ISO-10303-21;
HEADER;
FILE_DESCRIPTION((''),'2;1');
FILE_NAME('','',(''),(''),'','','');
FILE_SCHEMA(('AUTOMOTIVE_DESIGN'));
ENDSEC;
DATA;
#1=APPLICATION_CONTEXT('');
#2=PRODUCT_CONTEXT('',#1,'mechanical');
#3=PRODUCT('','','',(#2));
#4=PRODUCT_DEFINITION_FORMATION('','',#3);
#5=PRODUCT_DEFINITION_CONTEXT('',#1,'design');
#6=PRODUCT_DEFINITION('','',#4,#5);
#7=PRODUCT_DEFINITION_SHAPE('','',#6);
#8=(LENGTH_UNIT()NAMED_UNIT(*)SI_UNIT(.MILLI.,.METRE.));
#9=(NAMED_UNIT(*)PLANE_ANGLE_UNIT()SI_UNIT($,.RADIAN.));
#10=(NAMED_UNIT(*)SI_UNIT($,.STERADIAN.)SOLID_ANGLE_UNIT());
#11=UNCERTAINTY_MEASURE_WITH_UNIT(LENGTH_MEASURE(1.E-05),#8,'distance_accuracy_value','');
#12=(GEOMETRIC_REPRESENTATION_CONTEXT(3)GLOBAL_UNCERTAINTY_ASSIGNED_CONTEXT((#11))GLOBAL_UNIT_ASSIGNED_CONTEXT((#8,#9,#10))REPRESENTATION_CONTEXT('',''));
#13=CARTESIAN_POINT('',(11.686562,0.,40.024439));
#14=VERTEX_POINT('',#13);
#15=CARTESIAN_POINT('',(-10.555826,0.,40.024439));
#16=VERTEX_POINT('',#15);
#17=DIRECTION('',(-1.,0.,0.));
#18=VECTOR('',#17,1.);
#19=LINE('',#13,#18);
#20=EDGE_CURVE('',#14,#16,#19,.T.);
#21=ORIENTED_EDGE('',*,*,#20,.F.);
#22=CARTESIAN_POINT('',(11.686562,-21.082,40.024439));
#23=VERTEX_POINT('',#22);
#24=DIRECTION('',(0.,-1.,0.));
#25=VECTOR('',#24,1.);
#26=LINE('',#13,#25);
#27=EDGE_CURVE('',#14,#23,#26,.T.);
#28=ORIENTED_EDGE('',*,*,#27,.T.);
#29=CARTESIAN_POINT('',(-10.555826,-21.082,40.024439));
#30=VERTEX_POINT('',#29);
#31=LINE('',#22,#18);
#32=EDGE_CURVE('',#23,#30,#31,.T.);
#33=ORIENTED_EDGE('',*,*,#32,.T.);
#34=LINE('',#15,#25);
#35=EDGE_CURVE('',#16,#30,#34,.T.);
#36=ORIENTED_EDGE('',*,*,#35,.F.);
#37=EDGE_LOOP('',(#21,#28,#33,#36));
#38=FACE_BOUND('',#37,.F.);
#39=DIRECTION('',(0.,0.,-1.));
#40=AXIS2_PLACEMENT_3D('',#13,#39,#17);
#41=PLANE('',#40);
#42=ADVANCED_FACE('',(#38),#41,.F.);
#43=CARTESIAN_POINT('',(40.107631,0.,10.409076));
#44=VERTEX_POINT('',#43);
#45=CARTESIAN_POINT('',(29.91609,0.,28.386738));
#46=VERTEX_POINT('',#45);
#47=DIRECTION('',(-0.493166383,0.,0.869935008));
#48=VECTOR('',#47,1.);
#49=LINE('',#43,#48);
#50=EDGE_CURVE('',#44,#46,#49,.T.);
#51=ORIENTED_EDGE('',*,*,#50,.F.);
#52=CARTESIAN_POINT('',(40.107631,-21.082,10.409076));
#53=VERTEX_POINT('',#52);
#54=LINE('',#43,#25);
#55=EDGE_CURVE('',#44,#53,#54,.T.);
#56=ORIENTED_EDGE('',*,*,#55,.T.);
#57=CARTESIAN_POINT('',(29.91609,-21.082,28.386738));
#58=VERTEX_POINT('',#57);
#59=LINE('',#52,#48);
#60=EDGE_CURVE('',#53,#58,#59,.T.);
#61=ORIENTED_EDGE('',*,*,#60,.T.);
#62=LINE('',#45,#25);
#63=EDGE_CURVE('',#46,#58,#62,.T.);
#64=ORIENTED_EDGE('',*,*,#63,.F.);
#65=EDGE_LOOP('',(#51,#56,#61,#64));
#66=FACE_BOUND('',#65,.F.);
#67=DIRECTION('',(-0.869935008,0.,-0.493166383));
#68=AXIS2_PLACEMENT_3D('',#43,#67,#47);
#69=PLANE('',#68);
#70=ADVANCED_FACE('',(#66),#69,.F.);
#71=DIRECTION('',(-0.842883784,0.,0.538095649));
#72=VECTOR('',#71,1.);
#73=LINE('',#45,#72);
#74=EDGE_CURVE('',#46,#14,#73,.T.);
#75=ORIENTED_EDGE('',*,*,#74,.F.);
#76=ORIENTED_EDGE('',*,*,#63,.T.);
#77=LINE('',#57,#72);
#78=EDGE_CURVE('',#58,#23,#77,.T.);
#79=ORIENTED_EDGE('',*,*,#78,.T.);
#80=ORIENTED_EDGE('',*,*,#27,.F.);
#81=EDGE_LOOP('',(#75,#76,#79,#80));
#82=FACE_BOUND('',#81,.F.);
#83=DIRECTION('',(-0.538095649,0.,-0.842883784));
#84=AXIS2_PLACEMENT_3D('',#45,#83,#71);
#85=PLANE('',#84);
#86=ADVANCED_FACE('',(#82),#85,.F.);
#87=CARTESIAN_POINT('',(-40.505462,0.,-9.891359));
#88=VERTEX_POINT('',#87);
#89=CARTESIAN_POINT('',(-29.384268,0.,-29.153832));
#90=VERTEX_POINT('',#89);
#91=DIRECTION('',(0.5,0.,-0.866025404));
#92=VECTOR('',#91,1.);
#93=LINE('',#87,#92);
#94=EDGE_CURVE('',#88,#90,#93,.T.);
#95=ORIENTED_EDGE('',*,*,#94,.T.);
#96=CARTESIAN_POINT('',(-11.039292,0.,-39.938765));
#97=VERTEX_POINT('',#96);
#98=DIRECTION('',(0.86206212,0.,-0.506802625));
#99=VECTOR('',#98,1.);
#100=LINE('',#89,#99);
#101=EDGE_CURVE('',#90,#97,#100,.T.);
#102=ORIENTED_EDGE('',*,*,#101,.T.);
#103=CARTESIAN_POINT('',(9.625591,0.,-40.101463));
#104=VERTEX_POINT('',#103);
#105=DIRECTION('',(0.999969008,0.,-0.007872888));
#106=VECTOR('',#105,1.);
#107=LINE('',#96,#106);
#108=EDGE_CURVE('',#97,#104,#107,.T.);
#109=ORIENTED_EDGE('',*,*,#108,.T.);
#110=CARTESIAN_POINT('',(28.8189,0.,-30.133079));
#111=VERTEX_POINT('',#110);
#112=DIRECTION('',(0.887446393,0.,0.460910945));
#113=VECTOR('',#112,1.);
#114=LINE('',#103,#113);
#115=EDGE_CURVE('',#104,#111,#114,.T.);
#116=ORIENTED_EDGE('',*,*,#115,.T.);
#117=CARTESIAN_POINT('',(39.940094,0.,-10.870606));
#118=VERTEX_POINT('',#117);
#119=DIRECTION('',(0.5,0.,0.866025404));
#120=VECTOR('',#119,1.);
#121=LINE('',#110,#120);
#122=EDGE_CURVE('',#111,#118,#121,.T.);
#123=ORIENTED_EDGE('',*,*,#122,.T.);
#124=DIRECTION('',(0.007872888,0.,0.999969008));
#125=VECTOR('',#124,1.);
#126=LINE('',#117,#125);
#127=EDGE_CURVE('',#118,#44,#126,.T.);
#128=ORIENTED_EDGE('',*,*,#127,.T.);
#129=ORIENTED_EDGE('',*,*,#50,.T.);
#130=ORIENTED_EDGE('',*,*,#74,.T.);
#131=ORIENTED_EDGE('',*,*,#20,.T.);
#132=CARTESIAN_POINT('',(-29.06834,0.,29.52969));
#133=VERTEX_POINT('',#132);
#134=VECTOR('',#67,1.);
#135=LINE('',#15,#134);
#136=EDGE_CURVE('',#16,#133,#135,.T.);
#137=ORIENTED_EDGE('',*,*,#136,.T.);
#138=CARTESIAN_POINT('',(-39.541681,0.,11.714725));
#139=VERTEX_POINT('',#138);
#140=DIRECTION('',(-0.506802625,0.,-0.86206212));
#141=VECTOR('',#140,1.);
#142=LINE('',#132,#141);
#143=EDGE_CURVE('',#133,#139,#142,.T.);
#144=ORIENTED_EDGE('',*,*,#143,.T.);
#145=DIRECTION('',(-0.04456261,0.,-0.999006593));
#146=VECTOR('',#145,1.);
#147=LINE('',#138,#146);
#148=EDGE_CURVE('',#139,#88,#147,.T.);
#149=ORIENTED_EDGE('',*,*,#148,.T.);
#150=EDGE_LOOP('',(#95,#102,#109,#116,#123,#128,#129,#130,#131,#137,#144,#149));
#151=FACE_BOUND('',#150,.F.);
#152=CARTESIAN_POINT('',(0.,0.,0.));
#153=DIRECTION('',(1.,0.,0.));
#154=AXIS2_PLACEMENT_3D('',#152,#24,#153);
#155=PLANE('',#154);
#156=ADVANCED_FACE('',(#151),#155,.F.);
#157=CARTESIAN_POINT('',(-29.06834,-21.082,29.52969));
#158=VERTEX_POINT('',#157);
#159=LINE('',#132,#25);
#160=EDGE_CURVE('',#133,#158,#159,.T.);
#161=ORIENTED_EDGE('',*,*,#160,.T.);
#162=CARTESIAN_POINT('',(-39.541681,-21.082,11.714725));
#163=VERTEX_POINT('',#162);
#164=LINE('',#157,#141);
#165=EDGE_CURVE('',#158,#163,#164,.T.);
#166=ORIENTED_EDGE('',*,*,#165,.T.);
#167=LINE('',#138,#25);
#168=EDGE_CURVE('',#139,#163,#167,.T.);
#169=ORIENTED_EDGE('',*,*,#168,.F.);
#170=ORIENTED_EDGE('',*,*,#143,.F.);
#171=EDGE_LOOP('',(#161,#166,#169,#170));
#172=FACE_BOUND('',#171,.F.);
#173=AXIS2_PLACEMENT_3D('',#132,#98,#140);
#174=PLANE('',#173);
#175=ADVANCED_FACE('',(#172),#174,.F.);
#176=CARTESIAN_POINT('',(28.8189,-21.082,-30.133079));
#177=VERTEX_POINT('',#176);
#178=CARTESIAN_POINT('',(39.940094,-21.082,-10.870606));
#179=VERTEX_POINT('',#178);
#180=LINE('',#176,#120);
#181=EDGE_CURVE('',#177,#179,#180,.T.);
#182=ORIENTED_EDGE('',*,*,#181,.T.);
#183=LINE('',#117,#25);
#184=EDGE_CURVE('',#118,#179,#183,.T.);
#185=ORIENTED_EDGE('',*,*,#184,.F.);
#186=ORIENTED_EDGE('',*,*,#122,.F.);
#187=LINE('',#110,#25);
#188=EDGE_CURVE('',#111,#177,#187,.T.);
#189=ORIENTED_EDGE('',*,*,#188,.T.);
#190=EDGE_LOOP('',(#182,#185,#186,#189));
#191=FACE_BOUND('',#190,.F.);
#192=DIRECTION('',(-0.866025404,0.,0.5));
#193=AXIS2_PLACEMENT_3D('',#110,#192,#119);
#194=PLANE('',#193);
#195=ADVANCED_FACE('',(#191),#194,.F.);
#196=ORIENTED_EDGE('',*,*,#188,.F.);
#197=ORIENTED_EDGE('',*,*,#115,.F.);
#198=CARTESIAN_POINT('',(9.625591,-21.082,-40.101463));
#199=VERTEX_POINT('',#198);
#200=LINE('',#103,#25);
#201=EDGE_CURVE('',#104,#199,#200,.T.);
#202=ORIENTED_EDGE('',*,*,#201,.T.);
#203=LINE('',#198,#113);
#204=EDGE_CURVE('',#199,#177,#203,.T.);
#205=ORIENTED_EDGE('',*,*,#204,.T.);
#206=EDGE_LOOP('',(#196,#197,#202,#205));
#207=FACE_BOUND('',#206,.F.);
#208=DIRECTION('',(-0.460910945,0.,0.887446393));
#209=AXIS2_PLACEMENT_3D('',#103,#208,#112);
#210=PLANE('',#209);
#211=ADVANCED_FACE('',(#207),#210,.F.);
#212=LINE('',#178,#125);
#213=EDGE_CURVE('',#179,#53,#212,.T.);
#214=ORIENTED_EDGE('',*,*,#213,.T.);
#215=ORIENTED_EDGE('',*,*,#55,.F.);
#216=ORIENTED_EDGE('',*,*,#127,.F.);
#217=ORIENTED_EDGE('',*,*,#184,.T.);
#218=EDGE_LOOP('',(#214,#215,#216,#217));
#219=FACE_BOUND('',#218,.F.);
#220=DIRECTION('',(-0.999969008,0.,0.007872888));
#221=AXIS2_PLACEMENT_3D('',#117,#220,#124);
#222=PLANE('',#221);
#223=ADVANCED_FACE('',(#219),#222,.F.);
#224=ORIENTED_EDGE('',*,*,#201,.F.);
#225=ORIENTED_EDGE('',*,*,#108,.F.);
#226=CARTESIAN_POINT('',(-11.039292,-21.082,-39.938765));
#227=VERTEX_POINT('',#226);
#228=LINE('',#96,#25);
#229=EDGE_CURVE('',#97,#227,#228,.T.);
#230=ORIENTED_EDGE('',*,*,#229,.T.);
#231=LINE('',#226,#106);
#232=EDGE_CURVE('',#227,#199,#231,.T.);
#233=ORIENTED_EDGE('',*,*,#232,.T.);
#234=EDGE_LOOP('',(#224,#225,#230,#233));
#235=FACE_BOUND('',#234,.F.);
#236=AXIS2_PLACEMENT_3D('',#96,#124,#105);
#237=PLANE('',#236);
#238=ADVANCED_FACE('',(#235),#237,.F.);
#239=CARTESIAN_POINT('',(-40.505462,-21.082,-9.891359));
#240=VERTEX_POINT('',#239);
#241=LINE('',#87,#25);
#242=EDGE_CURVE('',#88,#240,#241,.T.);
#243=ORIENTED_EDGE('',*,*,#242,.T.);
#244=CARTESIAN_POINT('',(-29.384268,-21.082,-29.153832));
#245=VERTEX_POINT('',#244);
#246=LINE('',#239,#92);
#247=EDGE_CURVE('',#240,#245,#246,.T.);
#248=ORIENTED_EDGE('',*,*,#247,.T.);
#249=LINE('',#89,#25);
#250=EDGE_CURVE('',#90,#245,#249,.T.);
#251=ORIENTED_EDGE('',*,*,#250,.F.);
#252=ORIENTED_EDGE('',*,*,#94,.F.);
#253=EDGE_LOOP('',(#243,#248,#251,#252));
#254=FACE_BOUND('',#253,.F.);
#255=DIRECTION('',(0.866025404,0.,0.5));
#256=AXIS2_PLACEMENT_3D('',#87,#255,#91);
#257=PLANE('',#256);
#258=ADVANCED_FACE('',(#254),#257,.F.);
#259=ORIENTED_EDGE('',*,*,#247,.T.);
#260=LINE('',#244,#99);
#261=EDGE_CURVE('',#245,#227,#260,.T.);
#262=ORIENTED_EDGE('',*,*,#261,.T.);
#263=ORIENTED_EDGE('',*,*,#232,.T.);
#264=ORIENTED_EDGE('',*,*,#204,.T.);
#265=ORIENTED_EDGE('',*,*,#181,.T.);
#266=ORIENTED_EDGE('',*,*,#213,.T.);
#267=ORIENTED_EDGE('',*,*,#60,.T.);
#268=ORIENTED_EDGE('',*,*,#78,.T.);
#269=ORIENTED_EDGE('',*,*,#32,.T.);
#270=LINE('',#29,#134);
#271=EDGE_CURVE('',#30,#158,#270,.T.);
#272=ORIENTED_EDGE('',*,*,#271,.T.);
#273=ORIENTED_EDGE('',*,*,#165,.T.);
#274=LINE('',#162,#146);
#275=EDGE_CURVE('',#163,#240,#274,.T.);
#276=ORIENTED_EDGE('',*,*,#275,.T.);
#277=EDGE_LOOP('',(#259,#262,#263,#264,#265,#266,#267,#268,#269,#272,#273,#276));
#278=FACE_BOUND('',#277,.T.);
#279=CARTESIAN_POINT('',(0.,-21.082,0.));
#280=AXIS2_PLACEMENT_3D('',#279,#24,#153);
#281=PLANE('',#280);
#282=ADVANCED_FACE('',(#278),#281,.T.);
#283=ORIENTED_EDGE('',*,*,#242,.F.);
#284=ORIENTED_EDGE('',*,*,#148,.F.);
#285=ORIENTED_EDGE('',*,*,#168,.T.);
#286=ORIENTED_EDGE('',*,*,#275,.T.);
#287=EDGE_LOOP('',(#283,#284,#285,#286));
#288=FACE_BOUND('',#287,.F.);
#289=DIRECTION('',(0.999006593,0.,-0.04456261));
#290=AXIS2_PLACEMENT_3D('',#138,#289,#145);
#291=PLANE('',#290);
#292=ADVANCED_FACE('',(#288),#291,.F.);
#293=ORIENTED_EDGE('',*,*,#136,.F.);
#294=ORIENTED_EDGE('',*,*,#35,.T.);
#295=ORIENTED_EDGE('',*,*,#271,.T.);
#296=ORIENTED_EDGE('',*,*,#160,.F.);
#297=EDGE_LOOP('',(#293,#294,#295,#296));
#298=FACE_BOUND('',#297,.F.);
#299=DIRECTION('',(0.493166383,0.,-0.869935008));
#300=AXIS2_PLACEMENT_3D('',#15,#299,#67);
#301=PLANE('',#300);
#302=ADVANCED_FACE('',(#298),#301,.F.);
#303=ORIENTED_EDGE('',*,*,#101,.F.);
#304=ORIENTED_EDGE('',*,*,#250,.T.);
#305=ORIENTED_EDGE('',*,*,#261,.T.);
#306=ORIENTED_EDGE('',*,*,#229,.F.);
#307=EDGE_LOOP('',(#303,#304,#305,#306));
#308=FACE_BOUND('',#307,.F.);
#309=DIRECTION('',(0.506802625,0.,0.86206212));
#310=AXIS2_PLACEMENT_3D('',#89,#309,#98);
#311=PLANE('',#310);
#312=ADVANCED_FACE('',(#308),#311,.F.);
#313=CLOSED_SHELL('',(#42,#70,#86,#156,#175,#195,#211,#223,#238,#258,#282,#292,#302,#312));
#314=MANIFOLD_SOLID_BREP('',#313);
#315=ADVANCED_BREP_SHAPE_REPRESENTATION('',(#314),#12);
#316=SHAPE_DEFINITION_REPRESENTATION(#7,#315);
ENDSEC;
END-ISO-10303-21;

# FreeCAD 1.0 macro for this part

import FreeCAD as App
import Part
import Sketcher

V = App.Vector
Q = App.Units.Quantity


def add_polygon(sketch, points):
    """Adds a closed chain of lines whose ends are joined by coincident constraints."""
    first, n = sketch.GeometryCount, len(points)
    for a, b in zip(points, points[1:] + points[:1]):
        sketch.addGeometry(Part.LineSegment(App.Vector(*a, 0), App.Vector(*b, 0)), False)
    for i in range(n):
        sketch.addConstraint(Sketcher.Constraint("Coincident", first + i, 2, first + (i + 1) % n, 1))

doc = App.newDocument("Part")
body = doc.addObject("PartDesign::Body", "Body")

sketch1 = body.newObject("Sketcher::SketchObject", "Sketch")
sketch1.AttachmentSupport = (doc.getObject("XZ_Plane"), [""])
sketch1.MapMode = "FlatFace"
add_polygon(sketch1, [(-11, 40), (-29, 30), (-40, 12), (-41, -10), (-29, -29), (-11, -40), (10, -40), (29, -30), (40, -11), (40, 10), (30, 28), (12, 40)])
sketch1.addConstraint([
    Sketcher.Constraint("Horizontal", 11),
    Sketcher.Constraint("Perpendicular", 1, 4),
    Sketcher.Constraint("Perpendicular", 5, 8),
    Sketcher.Constraint("Perpendicular", 0, 9),
    Sketcher.Constraint("Equal", 0, 4),
    Sketcher.Constraint("Equal", 1, 5),
    Sketcher.Constraint("Equal", 2, 6),
    Sketcher.Constraint("Equal", 3, 7),
    Sketcher.Constraint("Equal", 4, 8),
    Sketcher.Constraint("Equal", 5, 9),
    Sketcher.Constraint("Equal", 6, 10),
    Sketcher.Constraint("Angle", 3, Q("-60 deg")),
    Sketcher.Constraint("Angle", 7, Q("60 deg")),
    Sketcher.Constraint("DistanceX", -1, 1, 6, 2, 28.8189),
    Sketcher.Constraint("DistanceX", 5, 2, 9, 2, 20.290499),
    Sketcher.Constraint("DistanceY", 5, 2, 9, 2, 68.488201),
    Sketcher.Constraint("DistanceY", 9, 2, 10, 2, 11.637701),
    Sketcher.Constraint("DistanceY", 2, 2, 11, 2, 49.915798),
    Sketcher.Constraint("Distance", 0, 21.280342),
    Sketcher.Constraint("Distance", 2, 21.627569),
    Sketcher.Constraint("DistanceX", 11, 2, 11, 1, 22.242388),
    Sketcher.Constraint("DistanceX", 0, 2, -1, 1, 29.06834),
    Sketcher.Constraint("DistanceY", -1, 1, 0, 2, 29.52969),
    Sketcher.Constraint("DistanceX", 1, 2, -1, 1, 39.541681),
])
pad1 = body.newObject("PartDesign::Pad", "Pad")
pad1.Profile = sketch1
pad1.Length = Q("0.83 in")

doc.recompute()
